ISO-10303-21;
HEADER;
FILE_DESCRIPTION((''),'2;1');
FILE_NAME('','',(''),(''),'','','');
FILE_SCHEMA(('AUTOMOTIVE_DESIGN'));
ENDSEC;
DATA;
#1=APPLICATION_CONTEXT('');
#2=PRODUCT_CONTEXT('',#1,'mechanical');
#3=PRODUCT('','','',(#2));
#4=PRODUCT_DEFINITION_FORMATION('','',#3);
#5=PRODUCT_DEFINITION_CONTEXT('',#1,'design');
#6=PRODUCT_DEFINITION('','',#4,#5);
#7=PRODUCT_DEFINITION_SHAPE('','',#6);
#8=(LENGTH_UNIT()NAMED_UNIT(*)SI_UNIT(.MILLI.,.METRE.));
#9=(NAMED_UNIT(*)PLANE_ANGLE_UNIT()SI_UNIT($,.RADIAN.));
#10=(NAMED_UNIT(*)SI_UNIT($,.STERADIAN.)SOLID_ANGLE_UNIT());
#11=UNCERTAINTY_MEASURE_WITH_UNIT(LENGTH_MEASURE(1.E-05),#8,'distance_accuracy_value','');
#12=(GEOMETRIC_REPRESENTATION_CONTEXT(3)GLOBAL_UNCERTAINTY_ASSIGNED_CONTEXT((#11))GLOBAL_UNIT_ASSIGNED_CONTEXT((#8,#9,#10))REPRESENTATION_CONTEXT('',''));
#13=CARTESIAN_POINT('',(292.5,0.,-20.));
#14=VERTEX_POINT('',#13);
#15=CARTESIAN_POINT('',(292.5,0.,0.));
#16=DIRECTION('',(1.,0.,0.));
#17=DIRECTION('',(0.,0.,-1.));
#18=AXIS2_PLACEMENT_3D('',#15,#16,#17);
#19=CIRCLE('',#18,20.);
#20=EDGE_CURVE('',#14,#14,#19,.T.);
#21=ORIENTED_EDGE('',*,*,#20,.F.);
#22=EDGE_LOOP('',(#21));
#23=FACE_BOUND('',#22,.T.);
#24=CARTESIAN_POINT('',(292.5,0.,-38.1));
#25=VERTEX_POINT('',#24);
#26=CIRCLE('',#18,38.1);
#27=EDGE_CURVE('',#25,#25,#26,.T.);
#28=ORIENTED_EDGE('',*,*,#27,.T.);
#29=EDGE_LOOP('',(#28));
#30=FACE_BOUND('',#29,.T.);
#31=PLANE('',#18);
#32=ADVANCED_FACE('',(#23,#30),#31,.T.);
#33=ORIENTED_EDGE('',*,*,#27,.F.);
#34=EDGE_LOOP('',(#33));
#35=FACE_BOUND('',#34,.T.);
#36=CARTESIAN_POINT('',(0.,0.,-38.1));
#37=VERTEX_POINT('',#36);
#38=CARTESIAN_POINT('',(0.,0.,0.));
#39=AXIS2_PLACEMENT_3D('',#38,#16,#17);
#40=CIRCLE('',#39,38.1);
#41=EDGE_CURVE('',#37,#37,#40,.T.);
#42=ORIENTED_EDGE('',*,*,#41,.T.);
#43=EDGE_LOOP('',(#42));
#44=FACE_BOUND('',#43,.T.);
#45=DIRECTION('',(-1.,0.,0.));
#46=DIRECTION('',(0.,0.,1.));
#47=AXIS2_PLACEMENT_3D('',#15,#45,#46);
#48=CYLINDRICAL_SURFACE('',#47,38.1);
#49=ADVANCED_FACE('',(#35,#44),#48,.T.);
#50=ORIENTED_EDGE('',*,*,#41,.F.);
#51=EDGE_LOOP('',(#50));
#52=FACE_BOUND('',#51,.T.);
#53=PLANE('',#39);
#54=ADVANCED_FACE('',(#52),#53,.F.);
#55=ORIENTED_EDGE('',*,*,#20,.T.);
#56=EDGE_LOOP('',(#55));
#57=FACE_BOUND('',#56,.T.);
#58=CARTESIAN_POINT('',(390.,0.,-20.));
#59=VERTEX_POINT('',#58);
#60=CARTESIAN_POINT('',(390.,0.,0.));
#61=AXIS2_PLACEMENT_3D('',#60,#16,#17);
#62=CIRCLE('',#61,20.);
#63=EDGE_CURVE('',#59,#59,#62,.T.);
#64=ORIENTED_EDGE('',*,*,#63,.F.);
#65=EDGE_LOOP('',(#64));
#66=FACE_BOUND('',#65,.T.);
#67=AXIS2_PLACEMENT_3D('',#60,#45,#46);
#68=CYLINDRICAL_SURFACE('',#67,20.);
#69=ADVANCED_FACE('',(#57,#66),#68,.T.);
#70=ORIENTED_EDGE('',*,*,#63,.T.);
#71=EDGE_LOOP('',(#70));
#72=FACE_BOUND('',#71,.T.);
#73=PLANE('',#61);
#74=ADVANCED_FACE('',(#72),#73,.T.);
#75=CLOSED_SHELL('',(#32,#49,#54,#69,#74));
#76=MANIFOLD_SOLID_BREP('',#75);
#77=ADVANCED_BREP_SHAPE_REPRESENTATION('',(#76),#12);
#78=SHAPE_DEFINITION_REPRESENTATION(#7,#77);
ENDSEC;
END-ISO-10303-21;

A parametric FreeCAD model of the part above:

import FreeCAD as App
import Part
import Sketcher

V = App.Vector
Q = App.Units.Quantity

doc = App.newDocument("Part")
body = doc.addObject("PartDesign::Body", "Body")

# Sketch on YZ plane
sketch1 = body.newObject("Sketcher::SketchObject", "Sketch")
sketch1.AttachmentSupport = (doc.getObject("YZ_Plane"), [""])
sketch1.MapMode = "FlatFace"
sketch1.addGeometry(Part.Circle(V(0, 0, 0), V(0, 0, 1), 20), False)
sketch1.addConstraint([
    Sketcher.Constraint("Coincident", 0, 3, -1, 1),
    Sketcher.Constraint("Diameter", 0, Q("40 mm")),
])
pad1 = body.newObject("PartDesign::Pad", "Pad")
pad1.Profile = sketch1
pad1.Length = 390

# Sketch on YZ plane
sketch2 = body.newObject("Sketcher::SketchObject", "Sketch001")
sketch2.AttachmentSupport = (doc.getObject("YZ_Plane"), [""])
sketch2.MapMode = "FlatFace"
sketch2.addGeometry(Part.Circle(V(0, 0, 0), V(0, 0, 1), 38), False)
sketch2.addConstraint([
    Sketcher.Constraint("Coincident", 0, 3, -1, 1),
    Sketcher.Constraint("Diameter", 0, Q("76.2 mm")),
])
pad2 = body.newObject("PartDesign::Pad", "Pad001")
pad2.Profile = sketch2
pad2.Length = 292.5

doc.recompute()
